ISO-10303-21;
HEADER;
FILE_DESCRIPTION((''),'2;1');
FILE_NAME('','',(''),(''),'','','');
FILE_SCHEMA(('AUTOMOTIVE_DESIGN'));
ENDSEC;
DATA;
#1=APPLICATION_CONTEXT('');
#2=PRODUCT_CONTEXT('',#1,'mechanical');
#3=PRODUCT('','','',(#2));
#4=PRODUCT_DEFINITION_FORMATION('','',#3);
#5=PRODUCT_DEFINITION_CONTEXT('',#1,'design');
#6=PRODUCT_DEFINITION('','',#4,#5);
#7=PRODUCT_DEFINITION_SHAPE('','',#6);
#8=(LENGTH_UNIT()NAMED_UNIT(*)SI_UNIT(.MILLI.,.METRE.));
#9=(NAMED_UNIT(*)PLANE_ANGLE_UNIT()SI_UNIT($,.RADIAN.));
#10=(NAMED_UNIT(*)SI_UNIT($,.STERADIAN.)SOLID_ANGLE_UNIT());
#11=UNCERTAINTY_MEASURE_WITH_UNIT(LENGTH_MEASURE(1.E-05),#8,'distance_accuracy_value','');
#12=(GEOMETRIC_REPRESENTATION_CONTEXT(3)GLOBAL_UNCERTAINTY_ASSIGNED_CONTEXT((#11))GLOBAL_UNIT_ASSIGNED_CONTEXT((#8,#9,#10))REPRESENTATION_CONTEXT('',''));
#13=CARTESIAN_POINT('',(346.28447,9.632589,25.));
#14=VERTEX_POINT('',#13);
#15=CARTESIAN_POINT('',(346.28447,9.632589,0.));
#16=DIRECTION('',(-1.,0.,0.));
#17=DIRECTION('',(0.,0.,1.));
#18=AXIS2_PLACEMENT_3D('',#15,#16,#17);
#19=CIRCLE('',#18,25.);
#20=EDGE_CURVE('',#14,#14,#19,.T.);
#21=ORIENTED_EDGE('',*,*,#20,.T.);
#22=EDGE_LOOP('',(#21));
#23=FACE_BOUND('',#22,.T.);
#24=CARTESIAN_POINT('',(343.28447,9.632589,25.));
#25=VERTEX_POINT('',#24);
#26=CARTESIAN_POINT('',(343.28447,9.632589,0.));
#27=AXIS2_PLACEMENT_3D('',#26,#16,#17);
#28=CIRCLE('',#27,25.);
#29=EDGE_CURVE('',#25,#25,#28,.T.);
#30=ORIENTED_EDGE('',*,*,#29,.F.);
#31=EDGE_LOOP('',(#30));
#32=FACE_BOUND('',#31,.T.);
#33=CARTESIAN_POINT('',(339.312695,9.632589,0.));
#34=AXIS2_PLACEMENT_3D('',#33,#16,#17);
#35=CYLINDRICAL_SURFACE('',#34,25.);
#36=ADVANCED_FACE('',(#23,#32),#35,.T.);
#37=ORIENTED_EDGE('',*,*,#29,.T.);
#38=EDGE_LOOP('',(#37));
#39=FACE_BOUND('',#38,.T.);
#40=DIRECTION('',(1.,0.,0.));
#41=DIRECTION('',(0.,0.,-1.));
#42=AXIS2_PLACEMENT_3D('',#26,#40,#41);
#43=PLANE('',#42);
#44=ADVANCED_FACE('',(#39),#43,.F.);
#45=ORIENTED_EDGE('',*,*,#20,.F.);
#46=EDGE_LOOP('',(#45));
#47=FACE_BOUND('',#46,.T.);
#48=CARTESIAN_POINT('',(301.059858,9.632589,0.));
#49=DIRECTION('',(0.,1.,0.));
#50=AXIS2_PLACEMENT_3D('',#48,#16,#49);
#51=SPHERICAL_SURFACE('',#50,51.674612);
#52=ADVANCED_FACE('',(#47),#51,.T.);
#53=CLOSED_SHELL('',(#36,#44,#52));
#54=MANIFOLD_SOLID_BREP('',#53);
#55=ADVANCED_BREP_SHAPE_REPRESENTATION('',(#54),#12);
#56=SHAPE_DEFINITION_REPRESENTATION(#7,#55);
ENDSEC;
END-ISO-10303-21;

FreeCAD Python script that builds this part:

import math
import FreeCAD as App
import Part
import Sketcher
from FreeCAD import Vector
Q = App.Units.Quantity

doc = App.newDocument("Part")
body = doc.addObject("PartDesign::Body", "Body")

# Sketch on XY plane
sketch1 = body.newObject("Sketcher::SketchObject", "Sketch")
sketch1.AttachmentSupport = (doc.getObject("XY_Plane"), [""])
sketch1.MapMode = "FlatFace"
sketch1.addGeometry(Part.LineSegment(Vector(343.28447, 34.632589, 0), Vector(343.28447, 9.632589, 0)), False)
sketch1.addGeometry(Part.LineSegment(Vector(343.28447, 9.632589, 0), Vector(352.73447, 9.632589, 0)), False)
sketch1.addGeometry(Part.ArcOfCircle(Part.Circle(Vector(301.059858, 9.632589, 0), Vector(0, 0, 1), 51.674612), math.radians(0), math.radians(28.933657)), False)
sketch1.addGeometry(Part.LineSegment(Vector(346.28447, 34.632589, 0), Vector(343.28447, 34.632589, 0)), False)
sketch1.addGeometry(Part.LineSegment(Vector(301.059858, 9.632589, 0), Vector(352.73447, 9.632589, 0)), True)  # axis
sketch1.addConstraint(Sketcher.Constraint("Coincident", 0, 2, 1, 1))
sketch1.addConstraint(Sketcher.Constraint("Coincident", 1, 2, 2, 1))
sketch1.addConstraint(Sketcher.Constraint("Coincident", 2, 2, 3, 1))
sketch1.addConstraint(Sketcher.Constraint("Coincident", 3, 2, 0, 1))
sketch1.addConstraint(Sketcher.Constraint("Vertical", 0))
sketch1.addConstraint(Sketcher.Constraint("Horizontal", 1))
sketch1.addConstraint(Sketcher.Constraint("Horizontal", 3))
sketch1.addConstraint(Sketcher.Constraint("Horizontal", 4))
sketch1.addConstraint(Sketcher.Constraint("Coincident", 4, 1, 2, 3))
sketch1.addConstraint(Sketcher.Constraint("Coincident", 4, 2, 1, 2))
sketch1.addConstraint(Sketcher.Constraint("DistanceX", 3, 2, 3, 1, Q("3 mm")))
sketch1.addConstraint(Sketcher.Constraint("DistanceY", 0, 2, 0, 1, Q("25 mm")))
sketch1.addConstraint(Sketcher.Constraint("DistanceX", 1, 1, 1, 2, Q("9.45 mm")))
sketch1.addConstraint(Sketcher.Constraint("DistanceY", -1, 1, 2, 3, Q("9.632589 mm")))
sketch1.addConstraint(Sketcher.Constraint("DistanceX", -1, 1, 0, 2, Q("343.28447 mm")))
revolution = body.newObject("PartDesign::Revolution", "Revolution")
revolution.Profile = sketch1
revolution.ReferenceAxis = (sketch1, ["Axis0"])
revolution.Angle = 360

doc.recompute()
